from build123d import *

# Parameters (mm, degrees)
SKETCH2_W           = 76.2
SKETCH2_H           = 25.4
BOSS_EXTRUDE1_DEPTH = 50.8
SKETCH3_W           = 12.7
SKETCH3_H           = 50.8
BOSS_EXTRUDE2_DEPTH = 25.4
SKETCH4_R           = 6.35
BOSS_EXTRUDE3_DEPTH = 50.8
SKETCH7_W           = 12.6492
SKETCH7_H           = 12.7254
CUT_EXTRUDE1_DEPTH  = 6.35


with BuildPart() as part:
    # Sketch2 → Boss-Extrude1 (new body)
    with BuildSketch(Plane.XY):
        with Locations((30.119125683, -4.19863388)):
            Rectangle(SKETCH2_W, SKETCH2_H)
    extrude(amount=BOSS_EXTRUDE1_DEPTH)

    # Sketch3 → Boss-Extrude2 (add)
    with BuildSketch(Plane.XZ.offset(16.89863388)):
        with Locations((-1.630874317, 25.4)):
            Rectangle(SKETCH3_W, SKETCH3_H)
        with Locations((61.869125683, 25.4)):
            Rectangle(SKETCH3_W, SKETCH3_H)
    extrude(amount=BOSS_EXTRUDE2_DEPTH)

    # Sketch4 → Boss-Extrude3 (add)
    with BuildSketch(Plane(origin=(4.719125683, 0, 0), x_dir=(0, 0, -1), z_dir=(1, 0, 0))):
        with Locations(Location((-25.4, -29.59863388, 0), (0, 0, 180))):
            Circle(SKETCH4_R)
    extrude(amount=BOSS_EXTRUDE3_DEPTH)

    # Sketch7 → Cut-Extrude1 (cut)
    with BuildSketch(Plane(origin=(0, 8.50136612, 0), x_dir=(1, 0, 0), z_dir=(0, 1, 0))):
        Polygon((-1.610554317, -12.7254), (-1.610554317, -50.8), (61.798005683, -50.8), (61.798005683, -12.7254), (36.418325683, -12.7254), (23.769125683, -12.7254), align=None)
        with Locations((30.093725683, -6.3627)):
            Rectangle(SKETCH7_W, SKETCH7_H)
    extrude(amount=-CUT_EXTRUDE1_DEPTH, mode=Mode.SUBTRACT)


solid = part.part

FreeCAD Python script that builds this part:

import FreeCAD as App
import Part
import Sketcher
from FreeCAD import Vector
Q = App.Units.Quantity


def add_polygon(sketch, points):
    """Adds a closed chain of lines whose ends are joined by coincident constraints."""
    first, n = sketch.GeometryCount, len(points)
    for a, b in zip(points, points[1:] + points[:1]):
        sketch.addGeometry(Part.LineSegment(App.Vector(*a, 0), App.Vector(*b, 0)), False)
    for i in range(n):
        sketch.addConstraint(Sketcher.Constraint("Coincident", first + i, 2, first + (i + 1) % n, 1))

doc = App.newDocument("Part")
body = doc.addObject("PartDesign::Body", "Body")

# Sketch on XY plane
sketch1 = body.newObject("Sketcher::SketchObject", "Sketch")
sketch1.AttachmentSupport = (doc.getObject("XY_Plane"), [""])
sketch1.MapMode = "FlatFace"
add_polygon(sketch1, [(-8, 9), (-8, -17), (68, -17), (68, 9)])  # lines 0-3
sketch1.addConstraint([
    Sketcher.Constraint("Vertical", 0),
    Sketcher.Constraint("Horizontal", 1),
    Sketcher.Constraint("Vertical", 2),
    Sketcher.Constraint("Horizontal", 3),
    Sketcher.Constraint("DistanceX", 1, 1, 1, 2, Q("3 in")),
    Sketcher.Constraint("DistanceY", 0, 2, 0, 1, Q("1 in")),
    Sketcher.Constraint("DistanceX", 0, 2, -1, 1, 7.980874),
    Sketcher.Constraint("DistanceY", 0, 2, -1, 1, 16.898634),
])
pad1 = body.newObject("PartDesign::Pad", "Pad")
pad1.Profile = sketch1
pad1.Length = Q("2 in")

# Sketch on XZ plane
sketch2 = body.newObject("Sketcher::SketchObject", "Sketch001")
sketch2.AttachmentSupport = (doc.getObject("XZ_Plane"), [""])
sketch2.MapMode = "FlatFace"
sketch2.AttachmentOffset = App.Placement(Vector(0, 0, 16.898634), App.Rotation())
add_polygon(sketch2, [(-8, 51), (-8, 0), (5, 0), (5, 51)])  # lines 0-3
add_polygon(sketch2, [(56, 51), (56, 0), (68, 0), (68, 51)])  # lines 4-7
sketch2.addConstraint([
    Sketcher.Constraint("Vertical", 0),
    Sketcher.Constraint("Horizontal", 1),
    Sketcher.Constraint("Vertical", 2),
    Sketcher.Constraint("Horizontal", 3),
    Sketcher.Constraint("Vertical", 4),
    Sketcher.Constraint("Horizontal", 5),
    Sketcher.Constraint("Vertical", 6),
    Sketcher.Constraint("Horizontal", 7),
    Sketcher.Constraint("PointOnObject", 0, 2, -1),
    Sketcher.Constraint("PointOnObject", 4, 2, -1),
    Sketcher.Constraint("Horizontal", 3, 2, 6, 2),
    Sketcher.Constraint("Equal", 3, 5),
    Sketcher.Constraint("DistanceY", 0, 2, 0, 1, Q("2 in")),
    Sketcher.Constraint("DistanceX", 1, 1, 1, 2, Q("0.5 in")),
    Sketcher.Constraint("DistanceX", 1, 2, 4, 2, Q("2 in")),
    Sketcher.Constraint("DistanceX", 0, 2, -1, 1, 7.980874),
])
pad2 = body.newObject("PartDesign::Pad", "Pad001")
pad2.Profile = sketch2
pad2.Length = Q("1 in")

# Sketch on YZ plane
sketch3 = body.newObject("Sketcher::SketchObject", "Sketch002")
sketch3.AttachmentSupport = (doc.getObject("YZ_Plane"), [""])
sketch3.MapMode = "FlatFace"
sketch3.AttachmentOffset = App.Placement(Vector(0, 0, 4.719126), App.Rotation())
sketch3.addGeometry(Part.Circle(Vector(-30, 25, 0), Vector(0, 0, 1), 6), False)
sketch3.addConstraint([
    Sketcher.Constraint("Diameter", 0, Q("0.5 in")),
    Sketcher.Constraint("DistanceY", -1, 1, 0, 3, Q("1 in")),
    Sketcher.Constraint("DistanceX", 0, 3, -1, 1, 29.598634),
])
pad3 = body.newObject("PartDesign::Pad", "Pad002")
pad3.Profile = sketch3
pad3.Length = Q("2 in")

# Sketch on XZ plane
sketch4 = body.newObject("Sketcher::SketchObject", "Sketch003")
sketch4.AttachmentSupport = (doc.getObject("XZ_Plane"), [""])
sketch4.MapMode = "FlatFace"
sketch4.AttachmentOffset = App.Placement(Vector(0, 0, -8.501366), App.Rotation())
add_polygon(sketch4, [(-2, 13), (-2, 51), (62, 51), (62, 13), (36, 13), (36, 0), (24, 0), (24, 13)])  # lines 0-7
sketch4.addConstraint([
    Sketcher.Constraint("Vertical", 0),
    Sketcher.Constraint("Horizontal", 1),
    Sketcher.Constraint("Vertical", 2),
    Sketcher.Constraint("Horizontal", 3),
    Sketcher.Constraint("Vertical", 4),
    Sketcher.Constraint("Horizontal", 5),
    Sketcher.Constraint("Vertical", 6),
    Sketcher.Constraint("Horizontal", 7),
    Sketcher.Constraint("PointOnObject", 4, 2, -1),
    Sketcher.Constraint("Horizontal", 3, 2, 6, 2),
    Sketcher.Constraint("Equal", 3, 7),
    Sketcher.Constraint("DistanceY", -1, 1, 0, 2, Q("2 in")),
    Sketcher.Constraint("DistanceX", 5, 2, 5, 1, Q("0.498 in")),
    Sketcher.Constraint("DistanceY", 0, 1, 0, 2, Q("1.499 in")),
    Sketcher.Constraint("DistanceX", 1, 1, 1, 2, Q("2.4964 in")),
    Sketcher.Constraint("DistanceX", 0, 2, -1, 1, 1.610554),
])
pocket1 = body.newObject("PartDesign::Pocket", "Pocket")
pocket1.Profile = sketch4
pocket1.Length = Q("0.25 in")
pocket1.Reversed = True

doc.recompute()
